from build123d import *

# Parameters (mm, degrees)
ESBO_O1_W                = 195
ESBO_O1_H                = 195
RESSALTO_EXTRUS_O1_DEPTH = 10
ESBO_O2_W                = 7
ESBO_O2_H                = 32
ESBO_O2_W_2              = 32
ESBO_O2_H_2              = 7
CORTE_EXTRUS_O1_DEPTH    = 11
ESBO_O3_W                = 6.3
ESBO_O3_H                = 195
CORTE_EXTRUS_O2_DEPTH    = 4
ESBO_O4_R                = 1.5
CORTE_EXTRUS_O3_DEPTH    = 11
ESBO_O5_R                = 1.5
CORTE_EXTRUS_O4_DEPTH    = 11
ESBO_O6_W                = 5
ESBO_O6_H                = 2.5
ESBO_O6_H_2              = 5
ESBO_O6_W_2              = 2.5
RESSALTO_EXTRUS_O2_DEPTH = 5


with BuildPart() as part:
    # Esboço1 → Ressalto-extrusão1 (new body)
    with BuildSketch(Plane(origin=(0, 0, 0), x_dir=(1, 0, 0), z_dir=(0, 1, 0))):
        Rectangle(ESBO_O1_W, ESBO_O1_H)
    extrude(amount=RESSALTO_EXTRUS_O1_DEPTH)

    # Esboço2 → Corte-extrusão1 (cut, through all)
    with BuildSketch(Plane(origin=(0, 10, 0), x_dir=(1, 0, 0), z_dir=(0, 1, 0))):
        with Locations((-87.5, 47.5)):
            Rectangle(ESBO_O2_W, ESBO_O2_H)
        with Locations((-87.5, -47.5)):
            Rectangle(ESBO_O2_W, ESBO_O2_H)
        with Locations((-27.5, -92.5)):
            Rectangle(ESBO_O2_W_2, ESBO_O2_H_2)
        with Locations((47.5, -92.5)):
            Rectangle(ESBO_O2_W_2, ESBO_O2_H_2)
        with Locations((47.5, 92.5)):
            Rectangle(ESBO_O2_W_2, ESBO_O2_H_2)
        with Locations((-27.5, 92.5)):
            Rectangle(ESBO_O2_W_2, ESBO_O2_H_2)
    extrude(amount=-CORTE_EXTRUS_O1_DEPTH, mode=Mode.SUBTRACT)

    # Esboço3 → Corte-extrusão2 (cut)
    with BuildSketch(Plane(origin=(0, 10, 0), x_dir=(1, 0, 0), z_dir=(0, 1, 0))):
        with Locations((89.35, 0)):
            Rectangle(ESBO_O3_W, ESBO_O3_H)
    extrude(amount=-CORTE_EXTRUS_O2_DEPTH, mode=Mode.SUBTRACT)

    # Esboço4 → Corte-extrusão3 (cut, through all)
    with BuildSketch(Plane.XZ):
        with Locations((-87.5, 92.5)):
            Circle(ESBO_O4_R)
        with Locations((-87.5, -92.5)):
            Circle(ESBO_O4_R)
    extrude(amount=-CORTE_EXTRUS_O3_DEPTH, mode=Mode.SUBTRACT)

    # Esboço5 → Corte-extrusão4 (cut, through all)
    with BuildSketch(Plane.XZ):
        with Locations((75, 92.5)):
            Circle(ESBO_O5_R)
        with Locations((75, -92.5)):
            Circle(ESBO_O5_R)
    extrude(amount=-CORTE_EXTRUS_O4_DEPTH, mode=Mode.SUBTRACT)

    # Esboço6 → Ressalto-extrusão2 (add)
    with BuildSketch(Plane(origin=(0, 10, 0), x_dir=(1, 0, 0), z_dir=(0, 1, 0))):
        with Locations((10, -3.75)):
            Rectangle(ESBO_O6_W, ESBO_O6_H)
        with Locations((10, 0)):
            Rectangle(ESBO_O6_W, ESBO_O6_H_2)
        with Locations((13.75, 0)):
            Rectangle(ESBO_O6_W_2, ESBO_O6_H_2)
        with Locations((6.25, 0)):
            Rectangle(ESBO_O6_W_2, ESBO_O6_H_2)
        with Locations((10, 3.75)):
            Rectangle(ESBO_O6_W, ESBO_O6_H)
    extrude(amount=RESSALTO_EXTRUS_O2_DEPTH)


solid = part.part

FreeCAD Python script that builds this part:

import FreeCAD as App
import Part
import Sketcher
from FreeCAD import Vector


def add_polygon(sketch, points):
    """Adds a closed chain of lines whose ends are joined by coincident constraints."""
    first, n = sketch.GeometryCount, len(points)
    for a, b in zip(points, points[1:] + points[:1]):
        sketch.addGeometry(Part.LineSegment(App.Vector(*a, 0), App.Vector(*b, 0)), False)
    for i in range(n):
        sketch.addConstraint(Sketcher.Constraint("Coincident", first + i, 2, first + (i + 1) % n, 1))

doc = App.newDocument("Part")
body = doc.addObject("PartDesign::Body", "Body")

# Sketch on XZ plane
sketch1 = doc.addObject("Sketcher::SketchObject", "Sketch")
body.addObject(sketch1)
sketch1.AttachmentSupport = (doc.XZ_Plane, [""])
sketch1.MapMode = "FlatFace"
add_polygon(sketch1, [(-98, -98), (-98, 98), (98, 98), (98, -98)])  # lines 0-3
sketch1.addConstraint(Sketcher.Constraint("Vertical", 0))
sketch1.addConstraint(Sketcher.Constraint("Horizontal", 1))
sketch1.addConstraint(Sketcher.Constraint("Vertical", 2))
sketch1.addConstraint(Sketcher.Constraint("Horizontal", 3))
sketch1.addConstraint(Sketcher.Constraint("Symmetric", 0, 2, 2, 2, -1, 1))
sketch1.addConstraint(Sketcher.Constraint("Equal", 3, 0))
sketch1.addConstraint(Sketcher.Constraint("DistanceX", 1, 1, 1, 2, 195.0))
pad1 = doc.addObject("PartDesign::Pad", "Pad")
body.addObject(pad1)
pad1.Profile = sketch1
pad1.Length = 10
pad1.Reversed = True

# Sketch on XZ plane
sketch2 = doc.addObject("Sketcher::SketchObject", "Sketch001")
body.addObject(sketch2)
sketch2.AttachmentSupport = (doc.XZ_Plane, [""])
sketch2.MapMode = "FlatFace"
sketch2.AttachmentOffset = App.Placement(Vector(0, 0, -10), App.Rotation())
add_polygon(sketch2, [(-91, -64), (-91, -32), (-84, -32), (-84, -64)])  # lines 0-3
add_polygon(sketch2, [(-91, 32), (-91, 64), (-84, 64), (-84, 32)])  # lines 4-7
add_polygon(sketch2, [(-44, 89), (-44, 96), (-12, 96), (-12, 89)])  # lines 8-11
add_polygon(sketch2, [(32, 89), (32, 96), (64, 96), (64, 89)])  # lines 12-15
add_polygon(sketch2, [(32, -96), (32, -89), (64, -89), (64, -96)])  # lines 16-19
add_polygon(sketch2, [(-44, -96), (-44, -89), (-12, -89), (-12, -96)])  # lines 20-23
sketch2.addConstraint(Sketcher.Constraint("Vertical", 0))
sketch2.addConstraint(Sketcher.Constraint("Horizontal", 1))
sketch2.addConstraint(Sketcher.Constraint("Vertical", 2))
sketch2.addConstraint(Sketcher.Constraint("Horizontal", 3))
sketch2.addConstraint(Sketcher.Constraint("Vertical", 4))
sketch2.addConstraint(Sketcher.Constraint("Horizontal", 5))
sketch2.addConstraint(Sketcher.Constraint("Vertical", 6))
sketch2.addConstraint(Sketcher.Constraint("Horizontal", 7))
sketch2.addConstraint(Sketcher.Constraint("Vertical", 8))
sketch2.addConstraint(Sketcher.Constraint("Horizontal", 9))
sketch2.addConstraint(Sketcher.Constraint("Vertical", 10))
sketch2.addConstraint(Sketcher.Constraint("Horizontal", 11))
sketch2.addConstraint(Sketcher.Constraint("Vertical", 12))
sketch2.addConstraint(Sketcher.Constraint("Horizontal", 13))
sketch2.addConstraint(Sketcher.Constraint("Vertical", 14))
sketch2.addConstraint(Sketcher.Constraint("Horizontal", 15))
sketch2.addConstraint(Sketcher.Constraint("Vertical", 16))
sketch2.addConstraint(Sketcher.Constraint("Horizontal", 17))
sketch2.addConstraint(Sketcher.Constraint("Vertical", 18))
sketch2.addConstraint(Sketcher.Constraint("Horizontal", 19))
sketch2.addConstraint(Sketcher.Constraint("Vertical", 20))
sketch2.addConstraint(Sketcher.Constraint("Horizontal", 21))
sketch2.addConstraint(Sketcher.Constraint("Vertical", 22))
sketch2.addConstraint(Sketcher.Constraint("Horizontal", 23))
sketch2.addConstraint(Sketcher.Constraint("Symmetric", 3, 2, 4, 2, -1))
sketch2.addConstraint(Sketcher.Constraint("Symmetric", 1, 2, 6, 2, -1))
sketch2.addConstraint(Sketcher.Constraint("Symmetric", 15, 2, 16, 2, -1))
sketch2.addConstraint(Sketcher.Constraint("Symmetric", 13, 2, 18, 2, -1))
sketch2.addConstraint(Sketcher.Constraint("Symmetric", 11, 2, 20, 2, -1))
sketch2.addConstraint(Sketcher.Constraint("Symmetric", 9, 2, 22, 2, -1))
sketch2.addConstraint(Sketcher.Constraint("Horizontal", 9, 2, 12, 2))
sketch2.addConstraint(Sketcher.Constraint("Horizontal", 11, 2, 14, 2))
sketch2.addConstraint(Sketcher.Constraint("Equal", 11, 13))
sketch2.addConstraint(Sketcher.Constraint("Equal", 23, 0))
sketch2.addConstraint(Sketcher.Constraint("Equal", 7, 8))
sketch2.addConstraint(Sketcher.Constraint("DistanceX", 1, 1, 1, 2, 7.0))
sketch2.addConstraint(Sketcher.Constraint("DistanceX", 9, 1, 9, 2, 32.0))
sketch2.addConstraint(Sketcher.Constraint("DistanceX", 0, 2, -1, 1, 91.0))
sketch2.addConstraint(Sketcher.Constraint("DistanceY", -1, 1, 8, 2, 96.0))
sketch2.addConstraint(Sketcher.Constraint("DistanceY", 0, 2, 4, 2, 95.0))
sketch2.addConstraint(Sketcher.Constraint("DistanceX", 9, 2, 12, 2, 43.0))
sketch2.addConstraint(Sketcher.Constraint("DistanceX", 8, 2, -1, 1, 43.5))
pocket1 = doc.addObject("PartDesign::Pocket", "Pocket")
body.addObject(pocket1)
pocket1.Profile = sketch2
pocket1.Type = "ThroughAll"
pocket1.Reversed = True

# Sketch on XZ plane
sketch3 = doc.addObject("Sketcher::SketchObject", "Sketch002")
body.addObject(sketch3)
sketch3.AttachmentSupport = (doc.XZ_Plane, [""])
sketch3.MapMode = "FlatFace"
sketch3.AttachmentOffset = App.Placement(Vector(0, 0, -10), App.Rotation())
add_polygon(sketch3, [(86, -98), (86, 98), (92, 98), (92, -98)])  # lines 0-3
sketch3.addConstraint(Sketcher.Constraint("Vertical", 0))
sketch3.addConstraint(Sketcher.Constraint("Horizontal", 1))
sketch3.addConstraint(Sketcher.Constraint("Vertical", 2))
sketch3.addConstraint(Sketcher.Constraint("Horizontal", 3))
sketch3.addConstraint(Sketcher.Constraint("DistanceY", 0, 1, 0, 2, 195.0))
sketch3.addConstraint(Sketcher.Constraint("DistanceX", 1, 1, 1, 2, 6.3))
sketch3.addConstraint(Sketcher.Constraint("DistanceX", -1, 1, 0, 2, 86.2))
sketch3.addConstraint(Sketcher.Constraint("DistanceY", -1, 1, 0, 2, 97.5))
pocket2 = doc.addObject("PartDesign::Pocket", "Pocket001")
body.addObject(pocket2)
pocket2.Profile = sketch3
pocket2.Length = 4
pocket2.Reversed = True

# Sketch on XZ plane
sketch4 = doc.addObject("Sketcher::SketchObject", "Sketch003")
body.addObject(sketch4)
sketch4.AttachmentSupport = (doc.XZ_Plane, [""])
sketch4.MapMode = "FlatFace"
sketch4.addGeometry(Part.Circle(Vector(-87.5, 92.5, 0), Vector(0, 0, 1), 1.5), False)
sketch4.addGeometry(Part.Circle(Vector(-87.5, -92.5, 0), Vector(0, 0, 1), 1.5), False)
sketch4.addConstraint(Sketcher.Constraint("Equal", 0, 1))
sketch4.addConstraint(Sketcher.Constraint("Symmetric", 0, 3, 1, 3, -1))
sketch4.addConstraint(Sketcher.Constraint("Diameter", 0, 3.0))
sketch4.addConstraint(Sketcher.Constraint("DistanceY", 1, 3, 0, 3, 185.0))
sketch4.addConstraint(Sketcher.Constraint("DistanceX", 0, 3, -1, 1, 87.5))
pocket3 = doc.addObject("PartDesign::Pocket", "Pocket002")
body.addObject(pocket3)
pocket3.Profile = sketch4
pocket3.Type = "ThroughAll"

# Sketch on XZ plane
sketch5 = doc.addObject("Sketcher::SketchObject", "Sketch004")
body.addObject(sketch5)
sketch5.AttachmentSupport = (doc.XZ_Plane, [""])
sketch5.MapMode = "FlatFace"
sketch5.addGeometry(Part.Circle(Vector(75, 92.5, 0), Vector(0, 0, 1), 1.5), False)
sketch5.addGeometry(Part.Circle(Vector(75, -92.5, 0), Vector(0, 0, 1), 1.5), False)
sketch5.addConstraint(Sketcher.Constraint("Equal", 0, 1))
sketch5.addConstraint(Sketcher.Constraint("Symmetric", 0, 3, 1, 3, -1))
sketch5.addConstraint(Sketcher.Constraint("Diameter", 0, 3.0))
sketch5.addConstraint(Sketcher.Constraint("DistanceX", -1, 1, 0, 3, 75.0))
sketch5.addConstraint(Sketcher.Constraint("DistanceY", 1, 3, 0, 3, 185.0))
pocket4 = doc.addObject("PartDesign::Pocket", "Pocket003")
body.addObject(pocket4)
pocket4.Profile = sketch5
pocket4.Type = "ThroughAll"

# Sketch on XZ plane
sketch6 = doc.addObject("Sketcher::SketchObject", "Sketch005")
body.addObject(sketch6)
sketch6.AttachmentSupport = (doc.XZ_Plane, [""])
sketch6.MapMode = "FlatFace"
sketch6.AttachmentOffset = App.Placement(Vector(0, 0, -10), App.Rotation())
add_polygon(sketch6, [(7.5, 5), (12.5, 5), (12.5, 2.5), (15, 2.5), (15, -2.5), (12.5, -2.5), (12.5, -5), (7.5, -5), (7.5, -2.5), (5, -2.5), (5, 2.5), (7.5, 2.5)])  # lines 0-11
sketch6.addConstraint(Sketcher.Constraint("Horizontal", 0))
sketch6.addConstraint(Sketcher.Constraint("Vertical", 1))
sketch6.addConstraint(Sketcher.Constraint("Horizontal", 2))
sketch6.addConstraint(Sketcher.Constraint("Vertical", 3))
sketch6.addConstraint(Sketcher.Constraint("Horizontal", 4))
sketch6.addConstraint(Sketcher.Constraint("Vertical", 5))
sketch6.addConstraint(Sketcher.Constraint("Horizontal", 6))
sketch6.addConstraint(Sketcher.Constraint("Vertical", 7))
sketch6.addConstraint(Sketcher.Constraint("Horizontal", 8))
sketch6.addConstraint(Sketcher.Constraint("Vertical", 9))
sketch6.addConstraint(Sketcher.Constraint("Horizontal", 10))
sketch6.addConstraint(Sketcher.Constraint("Vertical", 11))
sketch6.addConstraint(Sketcher.Constraint("Symmetric", 1, 2, 4, 2, -1))
sketch6.addConstraint(Sketcher.Constraint("Symmetric", 7, 2, 10, 2, -1))
sketch6.addConstraint(Sketcher.Constraint("Horizontal", 4, 2, 7, 2))
sketch6.addConstraint(Sketcher.Constraint("Equal", 4, 8))
sketch6.addConstraint(Sketcher.Constraint("Equal", 10, 1))
sketch6.addConstraint(Sketcher.Constraint("Equal", 6, 3))
sketch6.addConstraint(Sketcher.Constraint("Equal", 1, 5))
sketch6.addConstraint(Sketcher.Constraint("DistanceX", 0, 1, 0, 2, 5.0))
sketch6.addConstraint(Sketcher.Constraint("DistanceX", 2, 1, 2, 2, 2.5))
sketch6.addConstraint(Sketcher.Constraint("DistanceX", -1, 1, 2, 2, 15.0))
pad2 = doc.addObject("PartDesign::Pad", "Pad001")
body.addObject(pad2)
pad2.Profile = sketch6
pad2.Length = 5
pad2.Reversed = True

doc.recompute()
